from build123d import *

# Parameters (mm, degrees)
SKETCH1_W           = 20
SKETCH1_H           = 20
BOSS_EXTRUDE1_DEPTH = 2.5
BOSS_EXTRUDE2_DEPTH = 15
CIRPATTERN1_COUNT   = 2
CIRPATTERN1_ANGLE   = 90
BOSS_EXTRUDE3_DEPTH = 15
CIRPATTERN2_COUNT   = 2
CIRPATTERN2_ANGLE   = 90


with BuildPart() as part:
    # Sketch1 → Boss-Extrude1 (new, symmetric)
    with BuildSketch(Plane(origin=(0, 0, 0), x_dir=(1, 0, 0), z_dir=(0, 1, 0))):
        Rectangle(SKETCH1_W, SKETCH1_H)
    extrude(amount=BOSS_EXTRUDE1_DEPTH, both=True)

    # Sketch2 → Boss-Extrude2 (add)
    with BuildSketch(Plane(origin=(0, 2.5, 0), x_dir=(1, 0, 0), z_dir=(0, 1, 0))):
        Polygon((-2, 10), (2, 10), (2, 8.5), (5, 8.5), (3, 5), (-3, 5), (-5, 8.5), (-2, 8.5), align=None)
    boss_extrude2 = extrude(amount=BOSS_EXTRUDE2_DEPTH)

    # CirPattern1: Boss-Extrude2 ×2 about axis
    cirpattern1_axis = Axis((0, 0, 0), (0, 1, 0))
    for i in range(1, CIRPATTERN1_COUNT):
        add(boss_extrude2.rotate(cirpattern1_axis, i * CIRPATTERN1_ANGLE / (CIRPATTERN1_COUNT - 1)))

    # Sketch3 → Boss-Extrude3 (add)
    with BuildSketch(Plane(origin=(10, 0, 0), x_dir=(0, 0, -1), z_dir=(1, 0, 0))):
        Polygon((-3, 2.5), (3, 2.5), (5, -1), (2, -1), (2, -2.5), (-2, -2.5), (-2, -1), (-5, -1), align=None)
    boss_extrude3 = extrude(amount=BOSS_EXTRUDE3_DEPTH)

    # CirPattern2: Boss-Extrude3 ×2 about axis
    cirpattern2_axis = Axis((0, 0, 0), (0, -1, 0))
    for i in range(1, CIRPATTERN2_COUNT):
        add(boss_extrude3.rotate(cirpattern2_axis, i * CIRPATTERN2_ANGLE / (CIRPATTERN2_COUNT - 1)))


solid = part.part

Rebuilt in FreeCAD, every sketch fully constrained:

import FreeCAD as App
import Part
import Sketcher

doc = App.newDocument("Part")
body = doc.addObject("PartDesign::Body", "Body")

sketch1 = body.newObject("Sketcher::SketchObject", "Sketch")
sketch1.AttachmentSupport = (doc.getObject("XZ_Plane"), [""])
sketch1.MapMode = "FlatFace"
sketch1.addGeometry(Part.LineSegment(App.Vector(-10, -10, 0), App.Vector(-10, 10, 0)), False)
sketch1.addGeometry(Part.LineSegment(App.Vector(-10, 10, 0), App.Vector(10, 10, 0)), False)
sketch1.addGeometry(Part.LineSegment(App.Vector(10, 10, 0), App.Vector(10, -10, 0)), False)
sketch1.addGeometry(Part.LineSegment(App.Vector(10, -10, 0), App.Vector(-10, -10, 0)), False)
sketch1.addConstraint(Sketcher.Constraint("Coincident", 0, 2, 1, 1))
sketch1.addConstraint(Sketcher.Constraint("Coincident", 1, 2, 2, 1))
sketch1.addConstraint(Sketcher.Constraint("Coincident", 2, 2, 3, 1))
sketch1.addConstraint(Sketcher.Constraint("Coincident", 3, 2, 0, 1))
sketch1.addConstraint(Sketcher.Constraint("Vertical", 0))
sketch1.addConstraint(Sketcher.Constraint("Horizontal", 1))
sketch1.addConstraint(Sketcher.Constraint("Vertical", 2))
sketch1.addConstraint(Sketcher.Constraint("Horizontal", 3))
sketch1.addConstraint(Sketcher.Constraint("Symmetric", 0, 2, 2, 2, -1, 1))
sketch1.addConstraint(Sketcher.Constraint("Equal", 3, 0))
sketch1.addConstraint(Sketcher.Constraint("DistanceX", 1, 1, 1, 2, 20.0))
pad1 = body.newObject("PartDesign::Pad", "Pad")
pad1.Profile = sketch1
pad1.Length = 5
pad1.Midplane = True

sketch2 = body.newObject("Sketcher::SketchObject", "Sketch001")
sketch2.AttachmentSupport = (doc.getObject("XZ_Plane"), [""])
sketch2.MapMode = "FlatFace"
sketch2.AttachmentOffset = App.Placement(App.Vector(0, 0, -2.5), App.Rotation())
sketch2.addGeometry(Part.LineSegment(App.Vector(2, -10, 0), App.Vector(-2, -10, 0)), False)
sketch2.addGeometry(Part.LineSegment(App.Vector(-2, -10, 0), App.Vector(-2, -8.5, 0)), False)
sketch2.addGeometry(Part.LineSegment(App.Vector(-2, -8.5, 0), App.Vector(-5, -8.5, 0)), False)
sketch2.addGeometry(Part.LineSegment(App.Vector(-5, -8.5, 0), App.Vector(-3, -5, 0)), False)
sketch2.addGeometry(Part.LineSegment(App.Vector(-3, -5, 0), App.Vector(3, -5, 0)), False)
sketch2.addGeometry(Part.LineSegment(App.Vector(3, -5, 0), App.Vector(5, -8.5, 0)), False)
sketch2.addGeometry(Part.LineSegment(App.Vector(5, -8.5, 0), App.Vector(2, -8.5, 0)), False)
sketch2.addGeometry(Part.LineSegment(App.Vector(2, -8.5, 0), App.Vector(2, -10, 0)), False)
sketch2.addConstraint(Sketcher.Constraint("Coincident", 0, 2, 1, 1))
sketch2.addConstraint(Sketcher.Constraint("Coincident", 1, 2, 2, 1))
sketch2.addConstraint(Sketcher.Constraint("Coincident", 2, 2, 3, 1))
sketch2.addConstraint(Sketcher.Constraint("Coincident", 3, 2, 4, 1))
sketch2.addConstraint(Sketcher.Constraint("Coincident", 4, 2, 5, 1))
sketch2.addConstraint(Sketcher.Constraint("Coincident", 5, 2, 6, 1))
sketch2.addConstraint(Sketcher.Constraint("Coincident", 6, 2, 7, 1))
sketch2.addConstraint(Sketcher.Constraint("Coincident", 7, 2, 0, 1))
sketch2.addConstraint(Sketcher.Constraint("Horizontal", 0))
sketch2.addConstraint(Sketcher.Constraint("Vertical", 1))
sketch2.addConstraint(Sketcher.Constraint("Horizontal", 2))
sketch2.addConstraint(Sketcher.Constraint("Horizontal", 4))
sketch2.addConstraint(Sketcher.Constraint("Horizontal", 6))
sketch2.addConstraint(Sketcher.Constraint("Vertical", 7))
sketch2.addConstraint(Sketcher.Constraint("Symmetric", 2, 2, 5, 2, -2))
sketch2.addConstraint(Sketcher.Constraint("Equal", 2, 6))
sketch2.addConstraint(Sketcher.Constraint("Equal", 3, 5))
sketch2.addConstraint(Sketcher.Constraint("DistanceX", 0, 2, 0, 1, 4.0))
sketch2.addConstraint(Sketcher.Constraint("DistanceX", 2, 2, 2, 1, 3.0))
sketch2.addConstraint(Sketcher.Constraint("DistanceX", 4, 1, 4, 2, 6.0))
sketch2.addConstraint(Sketcher.Constraint("DistanceY", 1, 1, 1, 2, 1.5))
sketch2.addConstraint(Sketcher.Constraint("DistanceY", 0, 2, -1, 1, 10.0))
sketch2.addConstraint(Sketcher.Constraint("DistanceY", 3, 2, -1, 1, 5.0))
pad2 = body.newObject("PartDesign::Pad", "Pad001")
pad2.Profile = sketch2
pad2.Length = 15
pad2.Reversed = True
doc.recompute()

polarpattern = body.newObject("PartDesign::PolarPattern", "PolarPattern")
polarpattern.Originals = [pad2]
polarpattern.Axis = (doc.getObject("Y_Axis"), [""])
polarpattern.Angle = 90
polarpattern.Occurrences = 2
body.Tip = polarpattern

sketch3 = body.newObject("Sketcher::SketchObject", "Sketch002")
sketch3.AttachmentSupport = (doc.getObject("YZ_Plane"), [""])
sketch3.MapMode = "FlatFace"
sketch3.AttachmentOffset = App.Placement(App.Vector(0, 0, 10), App.Rotation())
sketch3.addGeometry(Part.LineSegment(App.Vector(2.5, -3, 0), App.Vector(2.5, 3, 0)), False)
sketch3.addGeometry(Part.LineSegment(App.Vector(2.5, 3, 0), App.Vector(-1, 5, 0)), False)
sketch3.addGeometry(Part.LineSegment(App.Vector(-1, 5, 0), App.Vector(-1, 2, 0)), False)
sketch3.addGeometry(Part.LineSegment(App.Vector(-1, 2, 0), App.Vector(-2.5, 2, 0)), False)
sketch3.addGeometry(Part.LineSegment(App.Vector(-2.5, 2, 0), App.Vector(-2.5, -2, 0)), False)
sketch3.addGeometry(Part.LineSegment(App.Vector(-2.5, -2, 0), App.Vector(-1, -2, 0)), False)
sketch3.addGeometry(Part.LineSegment(App.Vector(-1, -2, 0), App.Vector(-1, -5, 0)), False)
sketch3.addGeometry(Part.LineSegment(App.Vector(-1, -5, 0), App.Vector(2.5, -3, 0)), False)
sketch3.addConstraint(Sketcher.Constraint("Coincident", 0, 2, 1, 1))
sketch3.addConstraint(Sketcher.Constraint("Coincident", 1, 2, 2, 1))
sketch3.addConstraint(Sketcher.Constraint("Coincident", 2, 2, 3, 1))
sketch3.addConstraint(Sketcher.Constraint("Coincident", 3, 2, 4, 1))
sketch3.addConstraint(Sketcher.Constraint("Coincident", 4, 2, 5, 1))
sketch3.addConstraint(Sketcher.Constraint("Coincident", 5, 2, 6, 1))
sketch3.addConstraint(Sketcher.Constraint("Coincident", 6, 2, 7, 1))
sketch3.addConstraint(Sketcher.Constraint("Coincident", 7, 2, 0, 1))
sketch3.addConstraint(Sketcher.Constraint("Vertical", 0))
sketch3.addConstraint(Sketcher.Constraint("Vertical", 2))
sketch3.addConstraint(Sketcher.Constraint("Horizontal", 3))
sketch3.addConstraint(Sketcher.Constraint("Vertical", 4))
sketch3.addConstraint(Sketcher.Constraint("Horizontal", 5))
sketch3.addConstraint(Sketcher.Constraint("Vertical", 6))
sketch3.addConstraint(Sketcher.Constraint("Symmetric", 2, 2, 5, 2, -1))
sketch3.addConstraint(Sketcher.Constraint("Equal", 2, 6))
sketch3.addConstraint(Sketcher.Constraint("Equal", 1, 7))
sketch3.addConstraint(Sketcher.Constraint("DistanceY", 0, 1, 0, 2, 6.0))
sketch3.addConstraint(Sketcher.Constraint("DistanceY", 2, 2, 2, 1, 3.0))
sketch3.addConstraint(Sketcher.Constraint("DistanceY", 4, 2, 4, 1, 4.0))
sketch3.addConstraint(Sketcher.Constraint("DistanceX", 3, 2, 3, 1, 1.5))
sketch3.addConstraint(Sketcher.Constraint("DistanceX", 1, 2, -1, 1, 1.0))
sketch3.addConstraint(Sketcher.Constraint("DistanceX", 3, 2, 0, 2, 5.0))
pad3 = body.newObject("PartDesign::Pad", "Pad002")
pad3.Profile = sketch3
pad3.Length = 15
doc.recompute()

polarpattern2 = body.newObject("PartDesign::PolarPattern", "PolarPattern001")
polarpattern2.Originals = [pad3]
polarpattern2.Axis = (doc.getObject("Y_Axis"), [""])
polarpattern2.Angle = 90
polarpattern2.Occurrences = 2
polarpattern2.Reversed = True
body.Tip = polarpattern2

doc.recompute()
